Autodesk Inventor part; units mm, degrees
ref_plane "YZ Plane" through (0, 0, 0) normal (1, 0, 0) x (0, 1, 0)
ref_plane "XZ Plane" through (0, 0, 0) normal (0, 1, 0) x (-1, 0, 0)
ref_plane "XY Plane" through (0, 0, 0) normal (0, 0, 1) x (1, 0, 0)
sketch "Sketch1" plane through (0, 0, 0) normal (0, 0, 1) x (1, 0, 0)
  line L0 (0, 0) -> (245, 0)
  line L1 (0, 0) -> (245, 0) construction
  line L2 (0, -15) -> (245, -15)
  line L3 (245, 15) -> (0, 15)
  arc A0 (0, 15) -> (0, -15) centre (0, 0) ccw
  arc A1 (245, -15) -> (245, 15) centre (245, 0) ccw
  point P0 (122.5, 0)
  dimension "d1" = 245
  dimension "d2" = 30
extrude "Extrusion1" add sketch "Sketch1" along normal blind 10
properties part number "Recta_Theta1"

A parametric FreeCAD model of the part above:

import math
import FreeCAD as App
import Part
import Sketcher

doc = App.newDocument("Part")
body = doc.addObject("PartDesign::Body", "Body")

sketch1 = body.newObject("Sketcher::SketchObject", "Sketch")
sketch1.AttachmentSupport = (doc.getObject("XY_Plane"), [""])
sketch1.MapMode = "FlatFace"
sketch1.addGeometry([
    Part.ArcOfCircle(Part.Circle(App.Vector(0, 0, 0), App.Vector(0, 0, 1), 15), math.radians(90), math.radians(270)),
    Part.LineSegment(App.Vector(0, -15, 0), App.Vector(245, -15, 0)),
    Part.ArcOfCircle(Part.Circle(App.Vector(245, 0, 0), App.Vector(0, 0, 1), 15), math.radians(-90), math.radians(90)),
    Part.LineSegment(App.Vector(245, 15, 0), App.Vector(0, 15, 0)),
], False)
sketch1.addConstraint([
    Sketcher.Constraint("Tangent", 0, 2, 1, 1),
    Sketcher.Constraint("Tangent", 1, 2, 2, 1),
    Sketcher.Constraint("Tangent", 2, 2, 3, 1),
    Sketcher.Constraint("Tangent", 3, 2, 0, 1),
    Sketcher.Constraint("Horizontal", 1),
    Sketcher.Constraint("Horizontal", 3),
    Sketcher.Constraint("Coincident", 0, 3, -1, 1),
    Sketcher.Constraint("Radius", 0, 15.0),
    Sketcher.Constraint("DistanceX", 1, 1, 1, 2, 245.0),
])
pad1 = body.newObject("PartDesign::Pad", "Pad")
pad1.Profile = sketch1
pad1.Length = 10

doc.recompute()
